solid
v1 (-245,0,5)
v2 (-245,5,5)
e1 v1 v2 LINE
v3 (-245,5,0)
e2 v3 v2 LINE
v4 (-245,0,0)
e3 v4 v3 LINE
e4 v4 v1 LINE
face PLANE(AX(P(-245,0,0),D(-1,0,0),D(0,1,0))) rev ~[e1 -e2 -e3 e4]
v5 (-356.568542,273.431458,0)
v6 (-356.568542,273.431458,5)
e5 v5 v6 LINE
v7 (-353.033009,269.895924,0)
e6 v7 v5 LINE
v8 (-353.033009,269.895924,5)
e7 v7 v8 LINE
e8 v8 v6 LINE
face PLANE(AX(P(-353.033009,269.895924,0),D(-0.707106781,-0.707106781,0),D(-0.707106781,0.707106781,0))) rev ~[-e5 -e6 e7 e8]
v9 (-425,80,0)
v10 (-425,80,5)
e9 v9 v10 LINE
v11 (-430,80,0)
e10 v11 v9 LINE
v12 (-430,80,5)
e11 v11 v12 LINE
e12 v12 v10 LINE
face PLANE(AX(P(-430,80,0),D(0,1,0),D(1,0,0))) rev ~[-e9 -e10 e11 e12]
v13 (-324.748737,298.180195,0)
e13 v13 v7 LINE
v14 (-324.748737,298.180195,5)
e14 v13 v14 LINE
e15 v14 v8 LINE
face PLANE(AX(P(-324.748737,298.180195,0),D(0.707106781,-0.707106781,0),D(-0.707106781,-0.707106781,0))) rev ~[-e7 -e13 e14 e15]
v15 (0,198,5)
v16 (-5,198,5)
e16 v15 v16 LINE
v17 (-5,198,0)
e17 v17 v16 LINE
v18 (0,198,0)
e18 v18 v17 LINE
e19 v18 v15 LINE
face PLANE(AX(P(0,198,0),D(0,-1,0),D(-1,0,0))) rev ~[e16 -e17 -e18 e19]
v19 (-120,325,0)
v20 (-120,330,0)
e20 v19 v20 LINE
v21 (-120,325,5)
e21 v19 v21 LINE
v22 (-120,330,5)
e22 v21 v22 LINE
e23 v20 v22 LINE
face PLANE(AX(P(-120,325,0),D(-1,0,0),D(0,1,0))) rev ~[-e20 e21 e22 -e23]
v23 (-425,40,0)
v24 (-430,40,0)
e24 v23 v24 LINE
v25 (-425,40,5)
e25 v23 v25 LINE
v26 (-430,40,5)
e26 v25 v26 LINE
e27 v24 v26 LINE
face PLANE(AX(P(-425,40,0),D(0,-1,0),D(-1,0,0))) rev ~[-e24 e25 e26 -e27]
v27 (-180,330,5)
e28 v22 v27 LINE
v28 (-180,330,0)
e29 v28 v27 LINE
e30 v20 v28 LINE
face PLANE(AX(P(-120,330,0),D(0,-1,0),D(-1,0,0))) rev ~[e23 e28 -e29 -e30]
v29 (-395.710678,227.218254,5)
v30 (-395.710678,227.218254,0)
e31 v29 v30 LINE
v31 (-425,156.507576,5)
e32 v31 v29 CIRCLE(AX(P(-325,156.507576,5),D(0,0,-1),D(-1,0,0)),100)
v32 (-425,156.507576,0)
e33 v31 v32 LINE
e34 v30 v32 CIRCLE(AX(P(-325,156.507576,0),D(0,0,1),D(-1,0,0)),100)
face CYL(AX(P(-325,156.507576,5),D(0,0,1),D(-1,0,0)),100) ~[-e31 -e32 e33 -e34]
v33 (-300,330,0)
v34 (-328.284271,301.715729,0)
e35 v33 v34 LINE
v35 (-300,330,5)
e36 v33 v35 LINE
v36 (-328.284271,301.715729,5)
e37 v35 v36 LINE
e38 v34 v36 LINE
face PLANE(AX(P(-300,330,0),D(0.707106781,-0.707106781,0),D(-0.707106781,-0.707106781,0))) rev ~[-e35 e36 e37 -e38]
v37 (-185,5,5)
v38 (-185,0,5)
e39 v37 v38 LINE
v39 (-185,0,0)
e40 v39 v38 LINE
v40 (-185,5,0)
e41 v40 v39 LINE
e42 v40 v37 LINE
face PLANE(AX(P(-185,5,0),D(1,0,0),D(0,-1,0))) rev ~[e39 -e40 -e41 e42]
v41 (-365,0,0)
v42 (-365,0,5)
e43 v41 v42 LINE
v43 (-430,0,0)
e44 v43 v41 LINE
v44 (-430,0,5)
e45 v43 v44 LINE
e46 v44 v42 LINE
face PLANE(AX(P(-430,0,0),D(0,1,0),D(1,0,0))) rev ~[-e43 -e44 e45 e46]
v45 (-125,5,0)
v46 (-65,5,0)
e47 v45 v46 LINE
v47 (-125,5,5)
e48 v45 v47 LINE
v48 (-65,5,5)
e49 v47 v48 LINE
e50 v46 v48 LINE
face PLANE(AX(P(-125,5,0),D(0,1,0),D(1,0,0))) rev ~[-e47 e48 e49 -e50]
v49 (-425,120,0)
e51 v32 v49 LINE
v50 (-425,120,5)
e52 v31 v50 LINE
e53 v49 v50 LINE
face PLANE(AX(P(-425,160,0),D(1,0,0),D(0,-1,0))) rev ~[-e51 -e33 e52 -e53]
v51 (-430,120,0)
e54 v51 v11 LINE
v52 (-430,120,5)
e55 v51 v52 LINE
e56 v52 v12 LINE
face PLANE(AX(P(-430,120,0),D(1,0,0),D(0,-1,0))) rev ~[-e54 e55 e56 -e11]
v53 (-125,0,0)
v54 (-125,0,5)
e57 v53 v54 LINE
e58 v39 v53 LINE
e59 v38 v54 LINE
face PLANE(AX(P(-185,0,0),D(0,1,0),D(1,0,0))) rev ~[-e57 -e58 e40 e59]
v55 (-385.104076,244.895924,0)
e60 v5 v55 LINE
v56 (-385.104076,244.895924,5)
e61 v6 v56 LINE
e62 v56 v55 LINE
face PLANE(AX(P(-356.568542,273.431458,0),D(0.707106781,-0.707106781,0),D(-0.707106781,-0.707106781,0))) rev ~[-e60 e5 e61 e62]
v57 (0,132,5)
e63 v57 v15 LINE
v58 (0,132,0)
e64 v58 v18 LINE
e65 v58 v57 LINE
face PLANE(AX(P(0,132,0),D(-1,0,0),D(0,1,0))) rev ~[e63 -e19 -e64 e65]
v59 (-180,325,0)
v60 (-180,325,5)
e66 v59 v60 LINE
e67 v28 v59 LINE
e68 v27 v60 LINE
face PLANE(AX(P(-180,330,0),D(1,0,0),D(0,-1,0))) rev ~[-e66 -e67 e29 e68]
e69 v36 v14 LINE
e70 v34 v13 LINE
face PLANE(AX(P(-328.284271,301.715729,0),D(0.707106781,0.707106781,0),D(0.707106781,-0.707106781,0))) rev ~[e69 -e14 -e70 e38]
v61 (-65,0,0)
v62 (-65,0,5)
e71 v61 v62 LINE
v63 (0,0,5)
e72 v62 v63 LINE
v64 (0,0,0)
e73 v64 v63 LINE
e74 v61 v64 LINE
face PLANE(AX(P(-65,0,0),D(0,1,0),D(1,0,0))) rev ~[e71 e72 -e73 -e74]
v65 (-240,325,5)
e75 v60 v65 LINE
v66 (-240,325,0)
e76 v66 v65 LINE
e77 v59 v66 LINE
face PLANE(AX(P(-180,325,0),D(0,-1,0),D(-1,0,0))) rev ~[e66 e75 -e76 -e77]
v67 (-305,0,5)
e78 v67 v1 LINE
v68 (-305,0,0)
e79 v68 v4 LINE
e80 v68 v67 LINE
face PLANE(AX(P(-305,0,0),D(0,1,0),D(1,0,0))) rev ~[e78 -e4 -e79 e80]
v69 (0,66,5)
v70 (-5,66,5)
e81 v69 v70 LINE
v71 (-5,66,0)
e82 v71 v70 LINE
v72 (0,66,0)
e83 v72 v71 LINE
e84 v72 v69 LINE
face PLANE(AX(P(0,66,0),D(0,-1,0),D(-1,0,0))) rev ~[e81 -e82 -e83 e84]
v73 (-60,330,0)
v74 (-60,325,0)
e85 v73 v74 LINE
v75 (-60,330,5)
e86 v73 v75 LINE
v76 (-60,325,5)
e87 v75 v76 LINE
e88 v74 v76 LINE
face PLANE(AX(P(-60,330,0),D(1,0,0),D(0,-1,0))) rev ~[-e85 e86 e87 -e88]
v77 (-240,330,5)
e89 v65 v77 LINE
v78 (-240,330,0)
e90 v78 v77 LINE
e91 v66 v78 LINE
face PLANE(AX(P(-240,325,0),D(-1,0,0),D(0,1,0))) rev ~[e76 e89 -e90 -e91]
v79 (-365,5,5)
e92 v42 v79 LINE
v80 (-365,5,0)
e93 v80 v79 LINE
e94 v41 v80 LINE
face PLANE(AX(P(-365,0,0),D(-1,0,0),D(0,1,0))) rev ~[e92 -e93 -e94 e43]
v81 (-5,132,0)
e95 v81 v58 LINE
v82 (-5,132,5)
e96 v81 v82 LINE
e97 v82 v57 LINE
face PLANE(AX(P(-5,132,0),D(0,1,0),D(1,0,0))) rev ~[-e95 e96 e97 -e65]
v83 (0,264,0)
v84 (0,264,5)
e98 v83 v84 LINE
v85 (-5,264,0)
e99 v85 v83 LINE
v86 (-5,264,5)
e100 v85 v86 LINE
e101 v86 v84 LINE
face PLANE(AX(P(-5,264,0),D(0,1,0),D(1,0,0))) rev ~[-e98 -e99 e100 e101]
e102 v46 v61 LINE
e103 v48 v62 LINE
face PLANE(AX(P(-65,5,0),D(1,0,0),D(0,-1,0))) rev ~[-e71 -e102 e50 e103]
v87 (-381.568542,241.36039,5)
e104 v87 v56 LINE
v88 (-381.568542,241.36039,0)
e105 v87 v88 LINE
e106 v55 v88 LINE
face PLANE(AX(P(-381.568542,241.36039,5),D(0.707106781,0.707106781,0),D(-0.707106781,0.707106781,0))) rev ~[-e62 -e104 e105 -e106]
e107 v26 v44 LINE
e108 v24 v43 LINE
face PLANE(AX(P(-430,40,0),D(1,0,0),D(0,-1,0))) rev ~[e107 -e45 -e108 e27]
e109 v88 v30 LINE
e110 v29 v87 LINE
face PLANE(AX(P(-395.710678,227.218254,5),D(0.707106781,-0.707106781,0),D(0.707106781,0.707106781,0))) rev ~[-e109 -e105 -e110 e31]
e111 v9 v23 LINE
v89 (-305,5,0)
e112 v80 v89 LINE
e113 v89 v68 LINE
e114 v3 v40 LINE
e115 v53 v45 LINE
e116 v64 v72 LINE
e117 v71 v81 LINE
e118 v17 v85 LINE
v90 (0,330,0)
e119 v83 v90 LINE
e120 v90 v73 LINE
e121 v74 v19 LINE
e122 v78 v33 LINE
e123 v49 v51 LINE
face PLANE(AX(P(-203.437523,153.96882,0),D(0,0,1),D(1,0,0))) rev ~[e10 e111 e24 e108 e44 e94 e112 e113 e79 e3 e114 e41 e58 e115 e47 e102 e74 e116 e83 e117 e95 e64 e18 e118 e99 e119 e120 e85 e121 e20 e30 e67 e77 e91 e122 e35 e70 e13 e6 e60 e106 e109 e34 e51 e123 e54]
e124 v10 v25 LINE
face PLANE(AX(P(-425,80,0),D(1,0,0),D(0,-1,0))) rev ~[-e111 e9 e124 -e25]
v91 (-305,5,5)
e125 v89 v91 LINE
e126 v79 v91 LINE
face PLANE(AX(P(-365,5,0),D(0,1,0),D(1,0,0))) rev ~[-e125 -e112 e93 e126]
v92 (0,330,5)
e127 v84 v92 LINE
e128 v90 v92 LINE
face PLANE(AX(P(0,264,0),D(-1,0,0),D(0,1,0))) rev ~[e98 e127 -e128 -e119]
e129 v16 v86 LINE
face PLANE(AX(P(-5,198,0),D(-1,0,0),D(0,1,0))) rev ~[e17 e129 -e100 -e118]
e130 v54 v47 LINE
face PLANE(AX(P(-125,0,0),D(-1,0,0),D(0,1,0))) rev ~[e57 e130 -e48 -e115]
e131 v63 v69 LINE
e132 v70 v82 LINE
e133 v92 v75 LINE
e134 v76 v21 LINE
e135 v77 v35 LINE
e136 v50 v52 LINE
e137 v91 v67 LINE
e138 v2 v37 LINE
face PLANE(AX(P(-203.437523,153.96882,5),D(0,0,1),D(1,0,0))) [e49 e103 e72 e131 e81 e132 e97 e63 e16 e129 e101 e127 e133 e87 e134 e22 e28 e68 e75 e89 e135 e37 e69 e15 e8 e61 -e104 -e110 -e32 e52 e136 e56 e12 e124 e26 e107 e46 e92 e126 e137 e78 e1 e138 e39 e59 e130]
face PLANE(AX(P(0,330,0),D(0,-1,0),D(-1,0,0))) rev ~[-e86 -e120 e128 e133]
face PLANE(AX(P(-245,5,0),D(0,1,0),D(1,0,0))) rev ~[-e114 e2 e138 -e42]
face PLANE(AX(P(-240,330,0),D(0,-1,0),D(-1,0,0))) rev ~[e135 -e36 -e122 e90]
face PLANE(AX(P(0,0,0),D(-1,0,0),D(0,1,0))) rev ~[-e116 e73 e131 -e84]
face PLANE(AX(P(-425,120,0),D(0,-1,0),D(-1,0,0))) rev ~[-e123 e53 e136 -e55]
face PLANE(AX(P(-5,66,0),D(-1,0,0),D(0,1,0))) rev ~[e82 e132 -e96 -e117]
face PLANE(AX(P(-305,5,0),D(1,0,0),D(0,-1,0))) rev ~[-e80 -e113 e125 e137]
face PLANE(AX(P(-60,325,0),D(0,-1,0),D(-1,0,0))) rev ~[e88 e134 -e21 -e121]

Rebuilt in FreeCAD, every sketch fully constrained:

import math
import FreeCAD as App
import Part
import Sketcher
from FreeCAD import Vector
Q = App.Units.Quantity

doc = App.newDocument("Part")
body = doc.addObject("PartDesign::Body", "Body")

sketch1 = doc.addObject("Sketcher::SketchObject", "Sketch")
body.addObject(sketch1)
sketch1.AttachmentSupport = (doc.XY_Plane, [""])
sketch1.MapMode = "FlatFace"
sketch1.addGeometry([
    Part.LineSegment(Vector(0, 330, 0), Vector(-60, 330, 0)),
    Part.LineSegment(Vector(-60, 330, 0), Vector(-60, 325, 0)),
    Part.LineSegment(Vector(-60, 325, 0), Vector(-120, 325, 0)),
    Part.LineSegment(Vector(-120, 325, 0), Vector(-120, 330, 0)),
    Part.LineSegment(Vector(-120, 330, 0), Vector(-180, 330, 0)),
    Part.LineSegment(Vector(-180, 330, 0), Vector(-180, 325, 0)),
    Part.LineSegment(Vector(-180, 325, 0), Vector(-240, 325, 0)),
    Part.LineSegment(Vector(-240, 325, 0), Vector(-240, 330, 0)),
    Part.LineSegment(Vector(-240, 330, 0), Vector(-300, 330, 0)),
    Part.LineSegment(Vector(-300, 330, 0), Vector(-328.3, 301.7, 0)),
    Part.LineSegment(Vector(-328.3, 301.7, 0), Vector(-324.7, 298.2, 0)),
    Part.LineSegment(Vector(-324.7, 298.2, 0), Vector(-353, 269.9, 0)),
    Part.LineSegment(Vector(-353, 269.9, 0), Vector(-356.6, 273.4, 0)),
    Part.LineSegment(Vector(-356.6, 273.4, 0), Vector(-399.9, 230.1, 0)),
    Part.LineSegment(Vector(-399.9, 230.1, 0), Vector(-396.4, 226.6, 0)),
    Part.LineSegment(Vector(-396.4, 226.6, 0), Vector(-411.4, 211.5, 0)),
    Part.LineSegment(Vector(-411.4, 211.5, 0), Vector(-415, 215, 0)),
    Part.LineSegment(Vector(-415, 215, 0), Vector(-430, 200, 0)),
    Part.LineSegment(Vector(-430, 200, 0), Vector(-430, 160, 0)),
    Part.LineSegment(Vector(-430, 160, 0), Vector(-425, 160, 0)),
    Part.LineSegment(Vector(-425, 160, 0), Vector(-425, 120, 0)),
    Part.LineSegment(Vector(-425, 120, 0), Vector(-430, 120, 0)),
    Part.LineSegment(Vector(-430, 120, 0), Vector(-430, 80, 0)),
    Part.LineSegment(Vector(-430, 80, 0), Vector(-425, 80, 0)),
    Part.LineSegment(Vector(-425, 80, 0), Vector(-425, 40, 0)),
    Part.LineSegment(Vector(-425, 40, 0), Vector(-430, 40, 0)),
    Part.LineSegment(Vector(-430, 40, 0), Vector(-430, 0, 0)),
    Part.LineSegment(Vector(-430, 0, 0), Vector(-365, 0, 0)),
    Part.LineSegment(Vector(-365, 0, 0), Vector(-365, 5, 0)),
    Part.LineSegment(Vector(-365, 5, 0), Vector(-305, 5, 0)),
    Part.LineSegment(Vector(-305, 5, 0), Vector(-305, 0, 0)),
    Part.LineSegment(Vector(-305, 0, 0), Vector(-245, 0, 0)),
    Part.LineSegment(Vector(-245, 0, 0), Vector(-245, 5, 0)),
    Part.LineSegment(Vector(-245, 5, 0), Vector(-185, 5, 0)),
    Part.LineSegment(Vector(-185, 5, 0), Vector(-185, 0, 0)),
    Part.LineSegment(Vector(-185, 0, 0), Vector(-125, 0, 0)),
    Part.LineSegment(Vector(-125, 0, 0), Vector(-125, 5, 0)),
    Part.LineSegment(Vector(-125, 5, 0), Vector(-65, 5, 0)),
    Part.LineSegment(Vector(-65, 5, 0), Vector(-65, 0, 0)),
    Part.LineSegment(Vector(-65, 0, 0), Vector(0, 0, 0)),
    Part.LineSegment(Vector(0, 0, 0), Vector(0, 66, 0)),
    Part.LineSegment(Vector(0, 66, 0), Vector(-5, 66, 0)),
    Part.LineSegment(Vector(-5, 66, 0), Vector(-5, 132, 0)),
    Part.LineSegment(Vector(-5, 132, 0), Vector(0, 132, 0)),
    Part.LineSegment(Vector(0, 132, 0), Vector(0, 198, 0)),
    Part.LineSegment(Vector(0, 198, 0), Vector(-5, 198, 0)),
    Part.LineSegment(Vector(-5, 198, 0), Vector(-5, 264, 0)),
    Part.LineSegment(Vector(-5, 264, 0), Vector(0, 264, 0)),
    Part.LineSegment(Vector(0, 264, 0), Vector(0, 330, 0)),
], False)
sketch1.addConstraint([
    Sketcher.Constraint("Coincident", 0, 2, 1, 1),
    Sketcher.Constraint("Coincident", 1, 2, 2, 1),
    Sketcher.Constraint("Coincident", 2, 2, 3, 1),
    Sketcher.Constraint("Coincident", 3, 2, 4, 1),
    Sketcher.Constraint("Coincident", 4, 2, 5, 1),
    Sketcher.Constraint("Coincident", 5, 2, 6, 1),
    Sketcher.Constraint("Coincident", 6, 2, 7, 1),
    Sketcher.Constraint("Coincident", 7, 2, 8, 1),
    Sketcher.Constraint("Coincident", 8, 2, 9, 1),
    Sketcher.Constraint("Coincident", 9, 2, 10, 1),
    Sketcher.Constraint("Coincident", 10, 2, 11, 1),
    Sketcher.Constraint("Coincident", 11, 2, 12, 1),
    Sketcher.Constraint("Coincident", 12, 2, 13, 1),
    Sketcher.Constraint("Coincident", 13, 2, 14, 1),
    Sketcher.Constraint("Coincident", 14, 2, 15, 1),
    Sketcher.Constraint("Coincident", 15, 2, 16, 1),
    Sketcher.Constraint("Coincident", 16, 2, 17, 1),
    Sketcher.Constraint("Coincident", 17, 2, 18, 1),
    Sketcher.Constraint("Coincident", 18, 2, 19, 1),
    Sketcher.Constraint("Coincident", 19, 2, 20, 1),
    Sketcher.Constraint("Coincident", 20, 2, 21, 1),
    Sketcher.Constraint("Coincident", 21, 2, 22, 1),
    Sketcher.Constraint("Coincident", 22, 2, 23, 1),
    Sketcher.Constraint("Coincident", 23, 2, 24, 1),
    Sketcher.Constraint("Coincident", 24, 2, 25, 1),
    Sketcher.Constraint("Coincident", 25, 2, 26, 1),
    Sketcher.Constraint("Coincident", 26, 2, 27, 1),
    Sketcher.Constraint("Coincident", 27, 2, 28, 1),
    Sketcher.Constraint("Coincident", 28, 2, 29, 1),
    Sketcher.Constraint("Coincident", 29, 2, 30, 1),
    Sketcher.Constraint("Coincident", 30, 2, 31, 1),
    Sketcher.Constraint("Coincident", 31, 2, 32, 1),
    Sketcher.Constraint("Coincident", 32, 2, 33, 1),
    Sketcher.Constraint("Coincident", 33, 2, 34, 1),
    Sketcher.Constraint("Coincident", 34, 2, 35, 1),
    Sketcher.Constraint("Coincident", 35, 2, 36, 1),
    Sketcher.Constraint("Coincident", 36, 2, 37, 1),
    Sketcher.Constraint("Coincident", 37, 2, 38, 1),
    Sketcher.Constraint("Coincident", 38, 2, 39, 1),
    Sketcher.Constraint("Coincident", 39, 2, 40, 1),
    Sketcher.Constraint("Coincident", 40, 2, 41, 1),
    Sketcher.Constraint("Coincident", 41, 2, 42, 1),
    Sketcher.Constraint("Coincident", 42, 2, 43, 1),
    Sketcher.Constraint("Coincident", 43, 2, 44, 1),
    Sketcher.Constraint("Coincident", 44, 2, 45, 1),
    Sketcher.Constraint("Coincident", 45, 2, 46, 1),
    Sketcher.Constraint("Coincident", 46, 2, 47, 1),
    Sketcher.Constraint("Coincident", 47, 2, 48, 1),
    Sketcher.Constraint("Coincident", 48, 2, 0, 1),
    Sketcher.Constraint("Horizontal", 0),
    Sketcher.Constraint("Vertical", 1),
    Sketcher.Constraint("Horizontal", 2),
    Sketcher.Constraint("Vertical", 3),
    Sketcher.Constraint("Horizontal", 4),
    Sketcher.Constraint("Vertical", 5),
    Sketcher.Constraint("Horizontal", 6),
    Sketcher.Constraint("Vertical", 7),
    Sketcher.Constraint("Horizontal", 8),
    Sketcher.Constraint("Vertical", 18),
    Sketcher.Constraint("Horizontal", 19),
    Sketcher.Constraint("Vertical", 20),
    Sketcher.Constraint("Horizontal", 21),
    Sketcher.Constraint("Vertical", 22),
    Sketcher.Constraint("Horizontal", 23),
    Sketcher.Constraint("Vertical", 24),
    Sketcher.Constraint("Horizontal", 25),
    Sketcher.Constraint("Vertical", 26),
    Sketcher.Constraint("Horizontal", 27),
    Sketcher.Constraint("Vertical", 28),
    Sketcher.Constraint("Horizontal", 29),
    Sketcher.Constraint("Vertical", 30),
    Sketcher.Constraint("Horizontal", 31),
    Sketcher.Constraint("Vertical", 32),
    Sketcher.Constraint("Horizontal", 33),
    Sketcher.Constraint("Vertical", 34),
    Sketcher.Constraint("Horizontal", 35),
    Sketcher.Constraint("Vertical", 36),
    Sketcher.Constraint("Horizontal", 37),
    Sketcher.Constraint("Vertical", 38),
    Sketcher.Constraint("Horizontal", 39),
    Sketcher.Constraint("Vertical", 40),
    Sketcher.Constraint("Horizontal", 41),
    Sketcher.Constraint("Vertical", 42),
    Sketcher.Constraint("Horizontal", 43),
    Sketcher.Constraint("Vertical", 44),
    Sketcher.Constraint("Horizontal", 45),
    Sketcher.Constraint("Vertical", 46),
    Sketcher.Constraint("Horizontal", 47),
    Sketcher.Constraint("Vertical", 48),
    Sketcher.Constraint("Coincident", 39, 2, -1, 1),
    Sketcher.Constraint("PointOnObject", 26, 2, -1),
    Sketcher.Constraint("PointOnObject", 30, 2, -1),
    Sketcher.Constraint("PointOnObject", 34, 2, -1),
    Sketcher.Constraint("PointOnObject", 43, 2, -2),
    Sketcher.Constraint("PointOnObject", 47, 2, -2),
    Sketcher.Constraint("Perpendicular", 9, 10),
    Sketcher.Constraint("Perpendicular", 10, 11),
    Sketcher.Constraint("Perpendicular", 11, 12),
    Sketcher.Constraint("Perpendicular", 12, 13),
    Sketcher.Constraint("Perpendicular", 13, 14),
    Sketcher.Constraint("Perpendicular", 14, 15),
    Sketcher.Constraint("Perpendicular", 15, 16),
    Sketcher.Constraint("Perpendicular", 16, 17),
    Sketcher.Constraint("Horizontal", 0, 2, 3, 2),
    Sketcher.Constraint("Horizontal", 2, 2, 5, 2),
    Sketcher.Constraint("Horizontal", 4, 2, 7, 2),
    Sketcher.Constraint("Horizontal", 29, 2, 32, 2),
    Sketcher.Constraint("Horizontal", 33, 2, 36, 2),
    Sketcher.Constraint("Vertical", 18, 2, 21, 2),
    Sketcher.Constraint("Vertical", 20, 2, 23, 2),
    Sketcher.Constraint("Vertical", 22, 2, 25, 2),
    Sketcher.Constraint("Vertical", 42, 2, 45, 2),
    Sketcher.Constraint("Equal", 0, 2),
    Sketcher.Constraint("Equal", 2, 4),
    Sketcher.Constraint("Equal", 4, 6),
    Sketcher.Constraint("Equal", 6, 8),
    Sketcher.Constraint("Equal", 8, 29),
    Sketcher.Constraint("Equal", 29, 31),
    Sketcher.Constraint("Equal", 31, 33),
    Sketcher.Constraint("Equal", 33, 35),
    Sketcher.Constraint("Equal", 35, 37),
    Sketcher.Constraint("Equal", 27, 39),
    Sketcher.Constraint("Equal", 25, 41),
    Sketcher.Constraint("Equal", 47, 1),
    Sketcher.Constraint("Equal", 18, 20),
    Sketcher.Constraint("Equal", 20, 22),
    Sketcher.Constraint("Equal", 22, 24),
    Sketcher.Constraint("Equal", 24, 26),
    Sketcher.Constraint("Equal", 7, 28),
    Sketcher.Constraint("Equal", 40, 42),
    Sketcher.Constraint("Equal", 42, 44),
    Sketcher.Constraint("Equal", 44, 46),
    Sketcher.Constraint("Equal", 46, 48),
    Sketcher.Constraint("Equal", 9, 11),
    Sketcher.Constraint("Equal", 10, 12),
    Sketcher.Constraint("Equal", 12, 14),
    Sketcher.Constraint("Equal", 14, 16),
    Sketcher.Constraint("Equal", 15, 17),
    Sketcher.Constraint("DistanceX", 0, 2, 0, 1, 60.0),
    Sketcher.Constraint("DistanceX", 19, 1, 19, 2, 5.0),
    Sketcher.Constraint("DistanceX", 27, 1, 27, 2, 65.0),
    Sketcher.Constraint("DistanceY", 18, 2, 18, 1, 40.0),
    Sketcher.Constraint("DistanceY", 40, 1, 40, 2, 66.0),
    Sketcher.Constraint("Distance", 9, 40.0),
    Sketcher.Constraint("Distance", 10, 5.0),
    Sketcher.Constraint("DistanceY", 13, 2, 11, 2, 39.797799),
])
pad1 = doc.addObject("PartDesign::Pad", "Pad")
body.addObject(pad1)
pad1.Profile = sketch1
pad1.Length = 5

sketch2 = doc.addObject("Sketcher::SketchObject", "Sketch001")
body.addObject(sketch2)
sketch2.AttachmentSupport = (doc.XY_Plane, [""])
sketch2.MapMode = "FlatFace"
sketch2.AttachmentOffset = App.Placement(Vector(0, 0, 5), App.Rotation())
sketch2.addGeometry([
    Part.LineSegment(Vector(-396, 227, 0), Vector(-382, 241, 0)),
    Part.LineSegment(Vector(-382, 241, 0), Vector(-385, 245, 0)),
    Part.LineSegment(Vector(-385, 245, 0), Vector(-430, 200, 0)),
    Part.LineSegment(Vector(-430, 200, 0), Vector(-430, 157, 0)),
    Part.LineSegment(Vector(-430, 157, 0), Vector(-425, 157, 0)),
    Part.ArcOfCircle(Part.Circle(Vector(-325, 157, 0), Vector(0, 0, 1), 100), math.radians(135), math.radians(180)),
], False)
sketch2.addConstraint([
    Sketcher.Constraint("Coincident", 0, 2, 1, 1),
    Sketcher.Constraint("Coincident", 1, 2, 2, 1),
    Sketcher.Constraint("Coincident", 2, 2, 3, 1),
    Sketcher.Constraint("Coincident", 3, 2, 4, 1),
    Sketcher.Constraint("Coincident", 4, 2, 5, 2),
    Sketcher.Constraint("Tangent", 5, 1, 0, 1),
    Sketcher.Constraint("Vertical", 3),
    Sketcher.Constraint("Horizontal", 4),
    Sketcher.Constraint("Perpendicular", 0, 1),
    Sketcher.Constraint("Perpendicular", 1, 2),
    Sketcher.Constraint("Horizontal", 5, 3, 3, 2),
    Sketcher.Constraint("Radius", 5, 100.0),
    Sketcher.Constraint("DistanceX", 4, 1, 4, 2, 5.0),
    Sketcher.Constraint("Angle", 0, Q("45 deg")),
    Sketcher.Constraint("Distance", 0, 20.0),
    Sketcher.Constraint("Distance", 1, 5.0),
    Sketcher.Constraint("DistanceX", 5, 3, -1, 1, 325.0),
    Sketcher.Constraint("DistanceY", -1, 1, 2, 2, 200.0),
])
pocket1 = doc.addObject("PartDesign::Pocket", "Pocket")
body.addObject(pocket1)
pocket1.Profile = sketch2
pocket1.Type = "UpToFirst"

doc.recompute()
